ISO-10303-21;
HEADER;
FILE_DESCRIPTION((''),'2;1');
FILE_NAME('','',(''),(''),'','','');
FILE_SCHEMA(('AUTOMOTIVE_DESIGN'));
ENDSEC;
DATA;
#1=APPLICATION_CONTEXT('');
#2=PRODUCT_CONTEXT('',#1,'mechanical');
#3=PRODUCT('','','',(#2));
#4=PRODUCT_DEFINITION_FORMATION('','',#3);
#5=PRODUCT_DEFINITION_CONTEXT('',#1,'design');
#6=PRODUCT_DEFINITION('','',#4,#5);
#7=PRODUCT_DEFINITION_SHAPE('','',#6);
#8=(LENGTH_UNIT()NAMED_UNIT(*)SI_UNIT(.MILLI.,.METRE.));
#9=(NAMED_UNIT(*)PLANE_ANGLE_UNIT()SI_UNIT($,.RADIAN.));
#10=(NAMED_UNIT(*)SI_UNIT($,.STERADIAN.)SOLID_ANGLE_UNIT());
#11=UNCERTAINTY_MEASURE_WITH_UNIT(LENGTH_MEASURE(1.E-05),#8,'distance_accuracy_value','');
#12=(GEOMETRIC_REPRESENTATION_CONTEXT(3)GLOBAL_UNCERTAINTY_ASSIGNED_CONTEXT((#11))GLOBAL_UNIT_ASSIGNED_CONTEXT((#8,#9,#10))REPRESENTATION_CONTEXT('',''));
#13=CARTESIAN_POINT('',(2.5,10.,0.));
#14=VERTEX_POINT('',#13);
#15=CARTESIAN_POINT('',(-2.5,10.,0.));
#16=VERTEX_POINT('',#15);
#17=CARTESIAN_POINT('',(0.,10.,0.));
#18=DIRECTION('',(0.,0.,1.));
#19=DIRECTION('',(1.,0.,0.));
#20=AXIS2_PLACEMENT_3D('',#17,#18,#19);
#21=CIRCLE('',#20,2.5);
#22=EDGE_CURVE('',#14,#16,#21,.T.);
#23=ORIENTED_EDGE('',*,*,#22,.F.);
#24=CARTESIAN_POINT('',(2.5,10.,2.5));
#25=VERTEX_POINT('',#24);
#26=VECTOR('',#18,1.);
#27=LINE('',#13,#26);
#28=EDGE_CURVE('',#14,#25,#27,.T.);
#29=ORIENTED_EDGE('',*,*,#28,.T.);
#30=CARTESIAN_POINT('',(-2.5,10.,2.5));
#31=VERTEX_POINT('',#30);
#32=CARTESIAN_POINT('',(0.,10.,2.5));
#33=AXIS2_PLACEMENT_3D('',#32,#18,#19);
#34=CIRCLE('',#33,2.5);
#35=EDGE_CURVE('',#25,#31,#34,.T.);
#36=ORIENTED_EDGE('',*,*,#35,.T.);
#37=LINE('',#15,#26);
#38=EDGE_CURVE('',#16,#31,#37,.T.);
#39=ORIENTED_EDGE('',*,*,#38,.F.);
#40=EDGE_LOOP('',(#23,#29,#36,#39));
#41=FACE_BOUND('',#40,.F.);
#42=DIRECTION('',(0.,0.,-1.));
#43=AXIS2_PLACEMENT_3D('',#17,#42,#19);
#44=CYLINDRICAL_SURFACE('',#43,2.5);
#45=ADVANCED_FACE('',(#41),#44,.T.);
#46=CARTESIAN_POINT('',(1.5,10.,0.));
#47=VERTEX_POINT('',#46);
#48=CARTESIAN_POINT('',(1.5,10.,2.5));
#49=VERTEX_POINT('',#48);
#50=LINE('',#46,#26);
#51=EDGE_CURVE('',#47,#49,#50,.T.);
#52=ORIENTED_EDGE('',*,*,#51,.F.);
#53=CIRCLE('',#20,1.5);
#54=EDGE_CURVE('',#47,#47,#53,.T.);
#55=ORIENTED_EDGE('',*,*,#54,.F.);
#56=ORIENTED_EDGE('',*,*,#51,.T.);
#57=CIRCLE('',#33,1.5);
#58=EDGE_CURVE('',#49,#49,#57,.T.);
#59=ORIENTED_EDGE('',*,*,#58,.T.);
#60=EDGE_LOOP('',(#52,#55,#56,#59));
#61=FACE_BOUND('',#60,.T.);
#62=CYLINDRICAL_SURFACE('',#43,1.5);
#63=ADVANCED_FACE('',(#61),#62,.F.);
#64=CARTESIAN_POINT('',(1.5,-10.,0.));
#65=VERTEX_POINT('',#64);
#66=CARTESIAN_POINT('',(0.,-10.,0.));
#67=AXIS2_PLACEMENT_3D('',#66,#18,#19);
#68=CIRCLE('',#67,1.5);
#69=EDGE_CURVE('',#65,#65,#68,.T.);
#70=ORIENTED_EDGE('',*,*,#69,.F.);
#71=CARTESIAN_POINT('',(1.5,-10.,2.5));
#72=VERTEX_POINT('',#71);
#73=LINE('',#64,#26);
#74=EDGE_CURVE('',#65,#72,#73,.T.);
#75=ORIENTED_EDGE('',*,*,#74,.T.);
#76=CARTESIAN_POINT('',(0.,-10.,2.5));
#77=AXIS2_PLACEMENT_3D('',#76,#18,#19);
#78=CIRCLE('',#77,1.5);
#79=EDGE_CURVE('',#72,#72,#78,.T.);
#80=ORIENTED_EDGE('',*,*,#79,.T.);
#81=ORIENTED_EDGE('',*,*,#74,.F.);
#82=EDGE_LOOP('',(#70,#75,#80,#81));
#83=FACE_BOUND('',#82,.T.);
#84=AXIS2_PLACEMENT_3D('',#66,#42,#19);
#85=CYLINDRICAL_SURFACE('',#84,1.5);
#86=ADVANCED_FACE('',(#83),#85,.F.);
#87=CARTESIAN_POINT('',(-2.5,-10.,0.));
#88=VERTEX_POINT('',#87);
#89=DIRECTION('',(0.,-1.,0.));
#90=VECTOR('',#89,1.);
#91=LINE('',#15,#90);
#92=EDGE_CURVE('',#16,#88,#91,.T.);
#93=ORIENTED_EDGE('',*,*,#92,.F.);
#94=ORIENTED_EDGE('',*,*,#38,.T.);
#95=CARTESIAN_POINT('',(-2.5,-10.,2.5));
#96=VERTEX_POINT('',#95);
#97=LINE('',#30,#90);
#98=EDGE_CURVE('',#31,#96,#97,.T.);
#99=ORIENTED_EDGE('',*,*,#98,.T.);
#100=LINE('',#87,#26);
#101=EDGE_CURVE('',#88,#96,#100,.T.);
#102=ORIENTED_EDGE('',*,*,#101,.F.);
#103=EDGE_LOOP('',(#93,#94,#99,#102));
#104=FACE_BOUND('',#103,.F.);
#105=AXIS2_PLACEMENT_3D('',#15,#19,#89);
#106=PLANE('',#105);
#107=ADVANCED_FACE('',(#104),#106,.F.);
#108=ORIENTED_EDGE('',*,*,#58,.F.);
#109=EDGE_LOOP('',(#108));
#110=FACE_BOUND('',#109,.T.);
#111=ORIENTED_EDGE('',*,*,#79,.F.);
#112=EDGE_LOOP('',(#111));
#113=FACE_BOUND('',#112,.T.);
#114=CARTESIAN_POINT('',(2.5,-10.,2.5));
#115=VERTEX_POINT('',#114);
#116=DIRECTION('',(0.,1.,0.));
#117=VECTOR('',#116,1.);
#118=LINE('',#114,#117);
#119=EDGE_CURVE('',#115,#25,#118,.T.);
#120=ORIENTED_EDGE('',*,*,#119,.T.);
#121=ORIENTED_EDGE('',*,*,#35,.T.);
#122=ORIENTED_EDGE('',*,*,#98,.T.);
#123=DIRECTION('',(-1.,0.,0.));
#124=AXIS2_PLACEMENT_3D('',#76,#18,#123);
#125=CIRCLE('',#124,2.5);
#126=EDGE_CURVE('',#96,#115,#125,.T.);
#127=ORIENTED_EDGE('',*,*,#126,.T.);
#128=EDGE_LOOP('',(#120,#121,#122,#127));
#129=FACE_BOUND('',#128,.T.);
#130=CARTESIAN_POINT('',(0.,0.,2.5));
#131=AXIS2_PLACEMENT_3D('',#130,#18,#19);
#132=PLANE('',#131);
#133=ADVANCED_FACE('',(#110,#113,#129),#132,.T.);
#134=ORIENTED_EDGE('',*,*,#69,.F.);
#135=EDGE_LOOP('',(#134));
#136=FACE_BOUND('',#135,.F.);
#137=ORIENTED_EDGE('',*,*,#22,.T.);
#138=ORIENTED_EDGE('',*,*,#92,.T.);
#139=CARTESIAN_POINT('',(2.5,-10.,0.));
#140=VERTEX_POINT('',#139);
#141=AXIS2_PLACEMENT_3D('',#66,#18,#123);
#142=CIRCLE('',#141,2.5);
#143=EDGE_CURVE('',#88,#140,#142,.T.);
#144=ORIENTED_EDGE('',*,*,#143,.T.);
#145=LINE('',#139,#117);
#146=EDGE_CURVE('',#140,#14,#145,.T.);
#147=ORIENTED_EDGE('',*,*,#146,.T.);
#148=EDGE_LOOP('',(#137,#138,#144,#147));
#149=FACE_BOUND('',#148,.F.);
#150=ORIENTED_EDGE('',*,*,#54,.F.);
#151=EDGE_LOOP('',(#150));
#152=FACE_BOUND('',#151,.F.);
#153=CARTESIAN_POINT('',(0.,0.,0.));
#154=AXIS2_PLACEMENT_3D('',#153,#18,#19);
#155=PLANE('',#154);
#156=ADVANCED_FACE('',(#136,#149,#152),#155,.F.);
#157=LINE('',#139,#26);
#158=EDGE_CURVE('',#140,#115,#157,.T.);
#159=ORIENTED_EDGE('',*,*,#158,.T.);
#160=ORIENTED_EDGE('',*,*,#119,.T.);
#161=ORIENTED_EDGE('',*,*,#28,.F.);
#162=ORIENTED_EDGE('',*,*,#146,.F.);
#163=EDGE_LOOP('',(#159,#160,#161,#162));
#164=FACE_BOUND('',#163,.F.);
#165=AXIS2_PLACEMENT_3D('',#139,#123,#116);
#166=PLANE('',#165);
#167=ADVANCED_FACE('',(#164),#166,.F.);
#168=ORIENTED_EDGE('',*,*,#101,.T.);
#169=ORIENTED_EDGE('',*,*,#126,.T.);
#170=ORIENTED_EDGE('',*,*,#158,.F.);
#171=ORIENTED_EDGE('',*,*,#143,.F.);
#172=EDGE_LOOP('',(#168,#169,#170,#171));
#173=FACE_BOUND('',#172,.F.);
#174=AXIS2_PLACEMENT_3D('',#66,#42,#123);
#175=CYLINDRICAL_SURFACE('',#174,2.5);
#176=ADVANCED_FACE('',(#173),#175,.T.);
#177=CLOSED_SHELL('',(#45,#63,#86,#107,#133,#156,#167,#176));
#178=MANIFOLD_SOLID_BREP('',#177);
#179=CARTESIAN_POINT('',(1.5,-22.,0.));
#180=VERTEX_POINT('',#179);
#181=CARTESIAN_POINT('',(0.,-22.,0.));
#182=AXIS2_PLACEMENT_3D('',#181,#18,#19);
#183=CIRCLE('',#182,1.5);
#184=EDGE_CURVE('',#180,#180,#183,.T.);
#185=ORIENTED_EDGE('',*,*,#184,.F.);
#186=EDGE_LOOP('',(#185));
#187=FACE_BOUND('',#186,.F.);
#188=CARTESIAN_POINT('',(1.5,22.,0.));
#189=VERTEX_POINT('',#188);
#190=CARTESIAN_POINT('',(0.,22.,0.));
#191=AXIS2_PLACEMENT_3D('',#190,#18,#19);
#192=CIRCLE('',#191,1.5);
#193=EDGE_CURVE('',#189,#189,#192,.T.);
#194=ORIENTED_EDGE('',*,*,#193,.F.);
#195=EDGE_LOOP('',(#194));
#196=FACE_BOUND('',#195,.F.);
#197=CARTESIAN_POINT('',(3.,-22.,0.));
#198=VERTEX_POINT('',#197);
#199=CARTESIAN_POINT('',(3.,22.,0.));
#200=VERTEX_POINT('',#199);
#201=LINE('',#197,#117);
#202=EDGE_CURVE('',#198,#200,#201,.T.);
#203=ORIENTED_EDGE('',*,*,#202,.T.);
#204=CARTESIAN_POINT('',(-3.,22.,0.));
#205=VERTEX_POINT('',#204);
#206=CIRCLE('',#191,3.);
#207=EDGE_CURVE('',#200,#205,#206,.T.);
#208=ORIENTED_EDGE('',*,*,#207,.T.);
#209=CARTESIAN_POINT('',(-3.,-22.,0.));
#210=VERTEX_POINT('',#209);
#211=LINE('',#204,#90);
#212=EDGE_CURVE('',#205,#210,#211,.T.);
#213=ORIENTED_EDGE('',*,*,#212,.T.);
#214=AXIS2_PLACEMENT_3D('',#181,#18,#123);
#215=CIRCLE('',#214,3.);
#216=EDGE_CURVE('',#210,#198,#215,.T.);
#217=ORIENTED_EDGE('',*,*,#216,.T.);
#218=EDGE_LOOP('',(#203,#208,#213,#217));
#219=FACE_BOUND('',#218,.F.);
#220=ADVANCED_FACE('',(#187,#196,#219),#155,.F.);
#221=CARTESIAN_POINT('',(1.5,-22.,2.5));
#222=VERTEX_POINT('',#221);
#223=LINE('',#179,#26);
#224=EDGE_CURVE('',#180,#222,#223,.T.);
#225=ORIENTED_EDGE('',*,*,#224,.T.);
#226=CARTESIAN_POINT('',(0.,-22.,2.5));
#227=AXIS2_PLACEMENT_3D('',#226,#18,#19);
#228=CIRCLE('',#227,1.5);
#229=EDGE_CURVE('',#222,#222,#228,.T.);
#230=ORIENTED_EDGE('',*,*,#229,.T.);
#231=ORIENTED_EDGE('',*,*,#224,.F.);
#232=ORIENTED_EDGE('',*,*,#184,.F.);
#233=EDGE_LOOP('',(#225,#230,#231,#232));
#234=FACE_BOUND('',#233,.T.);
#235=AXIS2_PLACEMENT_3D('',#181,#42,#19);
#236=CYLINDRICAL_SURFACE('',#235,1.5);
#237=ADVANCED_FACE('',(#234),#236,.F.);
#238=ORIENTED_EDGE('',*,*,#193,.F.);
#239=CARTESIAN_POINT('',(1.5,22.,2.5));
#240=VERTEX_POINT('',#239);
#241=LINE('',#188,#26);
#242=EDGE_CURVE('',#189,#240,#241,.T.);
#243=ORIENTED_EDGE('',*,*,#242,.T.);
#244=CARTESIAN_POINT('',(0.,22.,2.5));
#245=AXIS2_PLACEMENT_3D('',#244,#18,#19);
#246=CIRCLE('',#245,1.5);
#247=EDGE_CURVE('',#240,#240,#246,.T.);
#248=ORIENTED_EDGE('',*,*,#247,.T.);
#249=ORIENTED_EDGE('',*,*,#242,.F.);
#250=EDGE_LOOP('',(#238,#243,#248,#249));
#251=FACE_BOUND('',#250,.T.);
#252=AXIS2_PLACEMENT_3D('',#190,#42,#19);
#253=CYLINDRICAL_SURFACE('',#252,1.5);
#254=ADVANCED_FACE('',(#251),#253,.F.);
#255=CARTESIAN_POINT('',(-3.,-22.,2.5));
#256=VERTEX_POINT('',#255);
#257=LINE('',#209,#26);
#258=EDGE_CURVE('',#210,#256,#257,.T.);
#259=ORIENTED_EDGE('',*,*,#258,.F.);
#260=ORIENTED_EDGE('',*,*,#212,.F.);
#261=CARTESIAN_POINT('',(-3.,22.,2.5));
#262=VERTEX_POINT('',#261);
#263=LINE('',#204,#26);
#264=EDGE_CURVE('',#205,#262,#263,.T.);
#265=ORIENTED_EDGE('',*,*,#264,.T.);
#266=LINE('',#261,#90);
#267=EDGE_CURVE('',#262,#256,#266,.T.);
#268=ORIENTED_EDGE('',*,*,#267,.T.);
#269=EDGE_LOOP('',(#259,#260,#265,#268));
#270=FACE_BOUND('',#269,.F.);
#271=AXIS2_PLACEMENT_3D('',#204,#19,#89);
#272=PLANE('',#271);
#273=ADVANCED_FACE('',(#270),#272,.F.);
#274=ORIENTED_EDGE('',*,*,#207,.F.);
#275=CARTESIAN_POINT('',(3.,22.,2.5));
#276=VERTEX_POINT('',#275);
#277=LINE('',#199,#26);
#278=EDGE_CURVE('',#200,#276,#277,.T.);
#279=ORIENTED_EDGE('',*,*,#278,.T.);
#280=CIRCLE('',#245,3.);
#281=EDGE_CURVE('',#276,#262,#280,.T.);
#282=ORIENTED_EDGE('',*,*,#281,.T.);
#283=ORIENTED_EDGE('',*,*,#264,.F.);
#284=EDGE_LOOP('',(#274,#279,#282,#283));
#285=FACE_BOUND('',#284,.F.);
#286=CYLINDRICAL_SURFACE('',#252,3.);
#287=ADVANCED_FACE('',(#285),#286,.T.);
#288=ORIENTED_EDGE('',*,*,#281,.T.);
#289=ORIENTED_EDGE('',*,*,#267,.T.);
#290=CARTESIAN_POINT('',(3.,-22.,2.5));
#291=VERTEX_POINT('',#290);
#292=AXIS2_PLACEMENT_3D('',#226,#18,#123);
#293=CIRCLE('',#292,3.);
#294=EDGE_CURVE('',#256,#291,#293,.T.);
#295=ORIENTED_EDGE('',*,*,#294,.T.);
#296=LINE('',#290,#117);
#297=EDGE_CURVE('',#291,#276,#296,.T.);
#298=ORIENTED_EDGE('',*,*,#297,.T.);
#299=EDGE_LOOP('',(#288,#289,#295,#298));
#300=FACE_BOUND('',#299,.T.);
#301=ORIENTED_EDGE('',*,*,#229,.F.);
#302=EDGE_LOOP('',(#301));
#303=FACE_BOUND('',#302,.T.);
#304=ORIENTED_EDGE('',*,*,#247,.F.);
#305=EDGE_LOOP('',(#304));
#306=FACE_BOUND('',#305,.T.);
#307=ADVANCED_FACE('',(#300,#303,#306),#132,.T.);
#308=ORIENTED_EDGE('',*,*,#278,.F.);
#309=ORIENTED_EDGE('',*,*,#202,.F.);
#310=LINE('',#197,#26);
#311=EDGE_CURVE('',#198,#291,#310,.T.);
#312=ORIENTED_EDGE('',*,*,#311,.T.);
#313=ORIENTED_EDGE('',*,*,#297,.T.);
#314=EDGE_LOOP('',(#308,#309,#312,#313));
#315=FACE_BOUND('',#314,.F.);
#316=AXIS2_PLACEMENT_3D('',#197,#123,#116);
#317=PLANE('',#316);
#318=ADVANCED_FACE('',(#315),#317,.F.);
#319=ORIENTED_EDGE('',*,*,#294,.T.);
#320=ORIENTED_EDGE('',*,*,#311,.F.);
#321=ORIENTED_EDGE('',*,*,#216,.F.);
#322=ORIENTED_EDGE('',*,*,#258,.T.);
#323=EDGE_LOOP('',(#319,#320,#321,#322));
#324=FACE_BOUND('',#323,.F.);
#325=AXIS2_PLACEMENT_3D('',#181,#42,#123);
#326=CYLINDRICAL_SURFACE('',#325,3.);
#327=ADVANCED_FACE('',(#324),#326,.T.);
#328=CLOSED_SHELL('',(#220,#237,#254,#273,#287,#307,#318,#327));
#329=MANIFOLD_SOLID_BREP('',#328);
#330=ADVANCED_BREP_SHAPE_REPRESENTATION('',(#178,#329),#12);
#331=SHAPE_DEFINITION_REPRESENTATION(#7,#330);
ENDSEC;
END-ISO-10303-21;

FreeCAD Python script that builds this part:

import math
import FreeCAD as App
import Part
import Sketcher
Q = App.Units.Quantity

doc = App.newDocument("Part")
body = doc.addObject("PartDesign::Body", "Body")

sketch1 = doc.addObject("Sketcher::SketchObject", "Sketch")
body.addObject(sketch1)
sketch1.AttachmentSupport = (doc.XY_Plane, [""])
sketch1.MapMode = "FlatFace"
sketch1.addGeometry([
    Part.LineSegment(App.Vector(-3, 22, 0), App.Vector(-3, -22, 0)),
    Part.ArcOfCircle(Part.Circle(App.Vector(0, -22, 0), App.Vector(0, 0, 1), 3), math.radians(180), math.radians(360)),
    Part.LineSegment(App.Vector(3, -22, 0), App.Vector(3, 22, 0)),
    Part.ArcOfCircle(Part.Circle(App.Vector(0, 22, 0), App.Vector(0, 0, 1), 3), math.radians(0), math.radians(180)),
    Part.Circle(App.Vector(0, -22, 0), App.Vector(0, 0, 1), 1.5),
    Part.Circle(App.Vector(0, 22, 0), App.Vector(0, 0, 1), 1.5),
], False)
sketch1.addConstraint([
    Sketcher.Constraint("Tangent", 0, 2, 1, 1),
    Sketcher.Constraint("Tangent", 1, 2, 2, 1),
    Sketcher.Constraint("Tangent", 2, 2, 3, 1),
    Sketcher.Constraint("Tangent", 3, 2, 0, 1),
    Sketcher.Constraint("Vertical", 0),
    Sketcher.Constraint("Vertical", 2),
    Sketcher.Constraint("Coincident", 4, 3, 1, 3),
    Sketcher.Constraint("Coincident", 5, 3, 3, 3),
    Sketcher.Constraint("Equal", 4, 5),
    Sketcher.Constraint("Symmetric", 1, 3, 3, 3, -1, 1),
    Sketcher.Constraint("Diameter", 4, Q("3 mm")),
    Sketcher.Constraint("Radius", 1, Q("3 mm")),
    Sketcher.Constraint("DistanceY", 0, 2, 0, 1, Q("44 mm")),
])
pad1 = doc.addObject("PartDesign::Pad", "Pad")
body.addObject(pad1)
pad1.Profile = sketch1
pad1.Length = 2.5
body2 = doc.addObject("PartDesign::Body", "Body001")

sketch2 = doc.addObject("Sketcher::SketchObject", "Sketch001")
body2.addObject(sketch2)
sketch2.AttachmentSupport = (doc.getObject("XY_Plane001"), [""])
sketch2.MapMode = "FlatFace"
sketch2.addGeometry([
    Part.LineSegment(App.Vector(-2.5, 10, 0), App.Vector(-2.5, -10, 0)),
    Part.ArcOfCircle(Part.Circle(App.Vector(0, -10, 0), App.Vector(0, 0, 1), 2.5), math.radians(180), math.radians(360)),
    Part.LineSegment(App.Vector(2.5, -10, 0), App.Vector(2.5, 10, 0)),
    Part.ArcOfCircle(Part.Circle(App.Vector(0, 10, 0), App.Vector(0, 0, 1), 2.5), math.radians(0), math.radians(180)),
    Part.Circle(App.Vector(0, -10, 0), App.Vector(0, 0, 1), 1.5),
    Part.Circle(App.Vector(0, 10, 0), App.Vector(0, 0, 1), 1.5),
], False)
sketch2.addConstraint([
    Sketcher.Constraint("Tangent", 0, 2, 1, 1),
    Sketcher.Constraint("Tangent", 1, 2, 2, 1),
    Sketcher.Constraint("Tangent", 2, 2, 3, 1),
    Sketcher.Constraint("Tangent", 3, 2, 0, 1),
    Sketcher.Constraint("Vertical", 0),
    Sketcher.Constraint("Vertical", 2),
    Sketcher.Constraint("Coincident", 4, 3, 1, 3),
    Sketcher.Constraint("Coincident", 5, 3, 3, 3),
    Sketcher.Constraint("Equal", 4, 5),
    Sketcher.Constraint("Symmetric", 1, 3, 3, 3, -1, 1),
    Sketcher.Constraint("Diameter", 4, Q("3 mm")),
    Sketcher.Constraint("Radius", 1, Q("2.5 mm")),
    Sketcher.Constraint("DistanceY", 0, 2, 0, 1, Q("20 mm")),
])
pad2 = doc.addObject("PartDesign::Pad", "Pad001")
body2.addObject(pad2)
pad2.Profile = sketch2
pad2.Length = 2.5

doc.recompute()
